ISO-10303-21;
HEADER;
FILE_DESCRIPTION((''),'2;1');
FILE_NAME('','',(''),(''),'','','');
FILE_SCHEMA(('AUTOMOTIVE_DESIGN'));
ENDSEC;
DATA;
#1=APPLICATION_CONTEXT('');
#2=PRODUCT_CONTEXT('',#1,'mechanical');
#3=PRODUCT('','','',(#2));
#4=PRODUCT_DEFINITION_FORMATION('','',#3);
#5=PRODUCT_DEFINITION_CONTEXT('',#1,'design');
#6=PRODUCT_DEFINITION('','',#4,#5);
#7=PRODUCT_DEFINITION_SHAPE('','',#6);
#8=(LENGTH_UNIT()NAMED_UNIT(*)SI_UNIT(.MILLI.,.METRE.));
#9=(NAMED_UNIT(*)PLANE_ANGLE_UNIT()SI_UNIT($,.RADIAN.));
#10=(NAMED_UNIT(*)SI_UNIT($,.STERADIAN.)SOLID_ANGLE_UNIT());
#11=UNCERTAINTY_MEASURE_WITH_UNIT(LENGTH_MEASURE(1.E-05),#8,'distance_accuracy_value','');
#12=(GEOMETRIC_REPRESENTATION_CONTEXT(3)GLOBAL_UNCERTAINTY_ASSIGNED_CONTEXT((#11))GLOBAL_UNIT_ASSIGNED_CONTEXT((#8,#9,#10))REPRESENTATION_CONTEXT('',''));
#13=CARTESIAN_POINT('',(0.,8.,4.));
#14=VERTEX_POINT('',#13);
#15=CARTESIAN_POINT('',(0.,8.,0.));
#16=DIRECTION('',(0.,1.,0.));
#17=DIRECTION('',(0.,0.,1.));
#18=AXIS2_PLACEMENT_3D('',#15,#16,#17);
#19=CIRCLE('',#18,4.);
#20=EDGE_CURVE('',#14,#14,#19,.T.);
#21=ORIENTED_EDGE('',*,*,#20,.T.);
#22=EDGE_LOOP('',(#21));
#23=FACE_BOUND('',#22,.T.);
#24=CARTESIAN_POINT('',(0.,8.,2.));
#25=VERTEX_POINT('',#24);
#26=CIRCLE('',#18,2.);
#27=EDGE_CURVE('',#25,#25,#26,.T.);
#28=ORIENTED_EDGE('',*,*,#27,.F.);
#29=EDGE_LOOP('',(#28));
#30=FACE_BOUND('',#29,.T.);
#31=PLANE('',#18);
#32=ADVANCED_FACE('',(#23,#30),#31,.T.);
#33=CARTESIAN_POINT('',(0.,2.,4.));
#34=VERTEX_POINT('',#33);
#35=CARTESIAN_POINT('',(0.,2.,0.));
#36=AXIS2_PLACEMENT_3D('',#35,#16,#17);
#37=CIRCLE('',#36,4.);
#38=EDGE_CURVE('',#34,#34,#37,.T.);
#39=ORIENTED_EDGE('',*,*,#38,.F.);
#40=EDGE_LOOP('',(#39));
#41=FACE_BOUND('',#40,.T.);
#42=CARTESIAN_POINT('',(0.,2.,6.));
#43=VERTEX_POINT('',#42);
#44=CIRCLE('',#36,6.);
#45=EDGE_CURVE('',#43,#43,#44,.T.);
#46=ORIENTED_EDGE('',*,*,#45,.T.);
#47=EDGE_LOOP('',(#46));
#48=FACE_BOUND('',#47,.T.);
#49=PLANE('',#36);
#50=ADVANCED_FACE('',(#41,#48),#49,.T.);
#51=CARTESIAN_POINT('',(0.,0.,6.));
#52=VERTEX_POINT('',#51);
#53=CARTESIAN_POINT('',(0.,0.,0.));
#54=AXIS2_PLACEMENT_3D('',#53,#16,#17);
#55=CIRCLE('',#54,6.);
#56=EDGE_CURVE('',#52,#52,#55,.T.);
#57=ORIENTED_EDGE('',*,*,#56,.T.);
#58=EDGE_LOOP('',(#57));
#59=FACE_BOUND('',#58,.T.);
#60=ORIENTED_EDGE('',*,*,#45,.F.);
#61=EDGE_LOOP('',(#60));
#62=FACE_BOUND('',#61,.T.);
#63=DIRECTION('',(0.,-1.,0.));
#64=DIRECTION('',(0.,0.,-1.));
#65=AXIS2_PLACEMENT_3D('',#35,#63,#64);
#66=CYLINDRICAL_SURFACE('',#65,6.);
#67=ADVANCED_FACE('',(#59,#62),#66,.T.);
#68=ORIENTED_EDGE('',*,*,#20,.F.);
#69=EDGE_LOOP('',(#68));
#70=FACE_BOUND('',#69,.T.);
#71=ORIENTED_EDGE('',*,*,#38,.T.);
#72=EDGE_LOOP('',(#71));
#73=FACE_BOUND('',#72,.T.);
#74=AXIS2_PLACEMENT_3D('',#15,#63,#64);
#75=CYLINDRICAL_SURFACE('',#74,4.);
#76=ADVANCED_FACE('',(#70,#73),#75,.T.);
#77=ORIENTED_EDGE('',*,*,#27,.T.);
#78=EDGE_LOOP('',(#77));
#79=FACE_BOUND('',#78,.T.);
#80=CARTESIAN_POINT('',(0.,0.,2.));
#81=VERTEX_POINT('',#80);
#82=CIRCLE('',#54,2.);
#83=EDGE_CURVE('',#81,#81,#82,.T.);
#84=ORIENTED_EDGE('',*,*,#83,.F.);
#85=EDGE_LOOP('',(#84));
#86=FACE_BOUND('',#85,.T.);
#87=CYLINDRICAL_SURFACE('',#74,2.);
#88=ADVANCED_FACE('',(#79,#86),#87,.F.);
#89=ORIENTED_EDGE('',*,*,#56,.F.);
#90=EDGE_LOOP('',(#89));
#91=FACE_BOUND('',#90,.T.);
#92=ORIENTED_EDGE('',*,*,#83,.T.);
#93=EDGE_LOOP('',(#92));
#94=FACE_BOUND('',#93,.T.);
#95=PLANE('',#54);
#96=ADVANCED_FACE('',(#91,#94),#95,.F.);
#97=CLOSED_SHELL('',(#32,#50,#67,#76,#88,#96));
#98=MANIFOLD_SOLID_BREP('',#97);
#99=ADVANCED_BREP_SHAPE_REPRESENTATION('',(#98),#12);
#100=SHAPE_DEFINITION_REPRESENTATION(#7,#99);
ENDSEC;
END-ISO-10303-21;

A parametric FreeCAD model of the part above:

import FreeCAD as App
import Part
import Sketcher

V = App.Vector

doc = App.newDocument("Part")
body = doc.addObject("PartDesign::Body", "Body")

# Sketch on XZ plane
sketch1 = body.newObject("Sketcher::SketchObject", "Sketch")
sketch1.AttachmentSupport = (doc.getObject("XZ_Plane"), [""])
sketch1.MapMode = "FlatFace"
sketch1.addGeometry([
    Part.Circle(V(0, 0, 0), V(0, 0, 1), 6),
    Part.Circle(V(0, 0, 0), V(0, 0, 1), 4),
], False)
sketch1.addConstraint([
    Sketcher.Constraint("Coincident", 0, 3, -1, 1),
    Sketcher.Constraint("Coincident", 1, 3, -1, 1),
    Sketcher.Constraint("Diameter", 0, 12.0),
    Sketcher.Constraint("Diameter", 1, 8.0),
])
pad1 = body.newObject("PartDesign::Pad", "Pad")
pad1.Profile = sketch1
pad1.Length = 2
pad1.Reversed = True

# Sketch on XZ plane
sketch2 = body.newObject("Sketcher::SketchObject", "Sketch001")
sketch2.AttachmentSupport = (doc.getObject("XZ_Plane"), [""])
sketch2.MapMode = "FlatFace"
sketch2.addGeometry([
    Part.Circle(V(0, 0, 0), V(0, 0, 1), 4),
    Part.Circle(V(0, 0, 0), V(0, 0, 1), 2),
], False)
sketch2.addConstraint([
    Sketcher.Constraint("Coincident", 0, 3, -1, 1),
    Sketcher.Constraint("Coincident", 1, 3, -1, 1),
    Sketcher.Constraint("Diameter", 0, 8.0),
    Sketcher.Constraint("Diameter", 1, 4.0),
])
pad2 = body.newObject("PartDesign::Pad", "Pad001")
pad2.Profile = sketch2
pad2.Length = 8
pad2.Reversed = True

doc.recompute()
